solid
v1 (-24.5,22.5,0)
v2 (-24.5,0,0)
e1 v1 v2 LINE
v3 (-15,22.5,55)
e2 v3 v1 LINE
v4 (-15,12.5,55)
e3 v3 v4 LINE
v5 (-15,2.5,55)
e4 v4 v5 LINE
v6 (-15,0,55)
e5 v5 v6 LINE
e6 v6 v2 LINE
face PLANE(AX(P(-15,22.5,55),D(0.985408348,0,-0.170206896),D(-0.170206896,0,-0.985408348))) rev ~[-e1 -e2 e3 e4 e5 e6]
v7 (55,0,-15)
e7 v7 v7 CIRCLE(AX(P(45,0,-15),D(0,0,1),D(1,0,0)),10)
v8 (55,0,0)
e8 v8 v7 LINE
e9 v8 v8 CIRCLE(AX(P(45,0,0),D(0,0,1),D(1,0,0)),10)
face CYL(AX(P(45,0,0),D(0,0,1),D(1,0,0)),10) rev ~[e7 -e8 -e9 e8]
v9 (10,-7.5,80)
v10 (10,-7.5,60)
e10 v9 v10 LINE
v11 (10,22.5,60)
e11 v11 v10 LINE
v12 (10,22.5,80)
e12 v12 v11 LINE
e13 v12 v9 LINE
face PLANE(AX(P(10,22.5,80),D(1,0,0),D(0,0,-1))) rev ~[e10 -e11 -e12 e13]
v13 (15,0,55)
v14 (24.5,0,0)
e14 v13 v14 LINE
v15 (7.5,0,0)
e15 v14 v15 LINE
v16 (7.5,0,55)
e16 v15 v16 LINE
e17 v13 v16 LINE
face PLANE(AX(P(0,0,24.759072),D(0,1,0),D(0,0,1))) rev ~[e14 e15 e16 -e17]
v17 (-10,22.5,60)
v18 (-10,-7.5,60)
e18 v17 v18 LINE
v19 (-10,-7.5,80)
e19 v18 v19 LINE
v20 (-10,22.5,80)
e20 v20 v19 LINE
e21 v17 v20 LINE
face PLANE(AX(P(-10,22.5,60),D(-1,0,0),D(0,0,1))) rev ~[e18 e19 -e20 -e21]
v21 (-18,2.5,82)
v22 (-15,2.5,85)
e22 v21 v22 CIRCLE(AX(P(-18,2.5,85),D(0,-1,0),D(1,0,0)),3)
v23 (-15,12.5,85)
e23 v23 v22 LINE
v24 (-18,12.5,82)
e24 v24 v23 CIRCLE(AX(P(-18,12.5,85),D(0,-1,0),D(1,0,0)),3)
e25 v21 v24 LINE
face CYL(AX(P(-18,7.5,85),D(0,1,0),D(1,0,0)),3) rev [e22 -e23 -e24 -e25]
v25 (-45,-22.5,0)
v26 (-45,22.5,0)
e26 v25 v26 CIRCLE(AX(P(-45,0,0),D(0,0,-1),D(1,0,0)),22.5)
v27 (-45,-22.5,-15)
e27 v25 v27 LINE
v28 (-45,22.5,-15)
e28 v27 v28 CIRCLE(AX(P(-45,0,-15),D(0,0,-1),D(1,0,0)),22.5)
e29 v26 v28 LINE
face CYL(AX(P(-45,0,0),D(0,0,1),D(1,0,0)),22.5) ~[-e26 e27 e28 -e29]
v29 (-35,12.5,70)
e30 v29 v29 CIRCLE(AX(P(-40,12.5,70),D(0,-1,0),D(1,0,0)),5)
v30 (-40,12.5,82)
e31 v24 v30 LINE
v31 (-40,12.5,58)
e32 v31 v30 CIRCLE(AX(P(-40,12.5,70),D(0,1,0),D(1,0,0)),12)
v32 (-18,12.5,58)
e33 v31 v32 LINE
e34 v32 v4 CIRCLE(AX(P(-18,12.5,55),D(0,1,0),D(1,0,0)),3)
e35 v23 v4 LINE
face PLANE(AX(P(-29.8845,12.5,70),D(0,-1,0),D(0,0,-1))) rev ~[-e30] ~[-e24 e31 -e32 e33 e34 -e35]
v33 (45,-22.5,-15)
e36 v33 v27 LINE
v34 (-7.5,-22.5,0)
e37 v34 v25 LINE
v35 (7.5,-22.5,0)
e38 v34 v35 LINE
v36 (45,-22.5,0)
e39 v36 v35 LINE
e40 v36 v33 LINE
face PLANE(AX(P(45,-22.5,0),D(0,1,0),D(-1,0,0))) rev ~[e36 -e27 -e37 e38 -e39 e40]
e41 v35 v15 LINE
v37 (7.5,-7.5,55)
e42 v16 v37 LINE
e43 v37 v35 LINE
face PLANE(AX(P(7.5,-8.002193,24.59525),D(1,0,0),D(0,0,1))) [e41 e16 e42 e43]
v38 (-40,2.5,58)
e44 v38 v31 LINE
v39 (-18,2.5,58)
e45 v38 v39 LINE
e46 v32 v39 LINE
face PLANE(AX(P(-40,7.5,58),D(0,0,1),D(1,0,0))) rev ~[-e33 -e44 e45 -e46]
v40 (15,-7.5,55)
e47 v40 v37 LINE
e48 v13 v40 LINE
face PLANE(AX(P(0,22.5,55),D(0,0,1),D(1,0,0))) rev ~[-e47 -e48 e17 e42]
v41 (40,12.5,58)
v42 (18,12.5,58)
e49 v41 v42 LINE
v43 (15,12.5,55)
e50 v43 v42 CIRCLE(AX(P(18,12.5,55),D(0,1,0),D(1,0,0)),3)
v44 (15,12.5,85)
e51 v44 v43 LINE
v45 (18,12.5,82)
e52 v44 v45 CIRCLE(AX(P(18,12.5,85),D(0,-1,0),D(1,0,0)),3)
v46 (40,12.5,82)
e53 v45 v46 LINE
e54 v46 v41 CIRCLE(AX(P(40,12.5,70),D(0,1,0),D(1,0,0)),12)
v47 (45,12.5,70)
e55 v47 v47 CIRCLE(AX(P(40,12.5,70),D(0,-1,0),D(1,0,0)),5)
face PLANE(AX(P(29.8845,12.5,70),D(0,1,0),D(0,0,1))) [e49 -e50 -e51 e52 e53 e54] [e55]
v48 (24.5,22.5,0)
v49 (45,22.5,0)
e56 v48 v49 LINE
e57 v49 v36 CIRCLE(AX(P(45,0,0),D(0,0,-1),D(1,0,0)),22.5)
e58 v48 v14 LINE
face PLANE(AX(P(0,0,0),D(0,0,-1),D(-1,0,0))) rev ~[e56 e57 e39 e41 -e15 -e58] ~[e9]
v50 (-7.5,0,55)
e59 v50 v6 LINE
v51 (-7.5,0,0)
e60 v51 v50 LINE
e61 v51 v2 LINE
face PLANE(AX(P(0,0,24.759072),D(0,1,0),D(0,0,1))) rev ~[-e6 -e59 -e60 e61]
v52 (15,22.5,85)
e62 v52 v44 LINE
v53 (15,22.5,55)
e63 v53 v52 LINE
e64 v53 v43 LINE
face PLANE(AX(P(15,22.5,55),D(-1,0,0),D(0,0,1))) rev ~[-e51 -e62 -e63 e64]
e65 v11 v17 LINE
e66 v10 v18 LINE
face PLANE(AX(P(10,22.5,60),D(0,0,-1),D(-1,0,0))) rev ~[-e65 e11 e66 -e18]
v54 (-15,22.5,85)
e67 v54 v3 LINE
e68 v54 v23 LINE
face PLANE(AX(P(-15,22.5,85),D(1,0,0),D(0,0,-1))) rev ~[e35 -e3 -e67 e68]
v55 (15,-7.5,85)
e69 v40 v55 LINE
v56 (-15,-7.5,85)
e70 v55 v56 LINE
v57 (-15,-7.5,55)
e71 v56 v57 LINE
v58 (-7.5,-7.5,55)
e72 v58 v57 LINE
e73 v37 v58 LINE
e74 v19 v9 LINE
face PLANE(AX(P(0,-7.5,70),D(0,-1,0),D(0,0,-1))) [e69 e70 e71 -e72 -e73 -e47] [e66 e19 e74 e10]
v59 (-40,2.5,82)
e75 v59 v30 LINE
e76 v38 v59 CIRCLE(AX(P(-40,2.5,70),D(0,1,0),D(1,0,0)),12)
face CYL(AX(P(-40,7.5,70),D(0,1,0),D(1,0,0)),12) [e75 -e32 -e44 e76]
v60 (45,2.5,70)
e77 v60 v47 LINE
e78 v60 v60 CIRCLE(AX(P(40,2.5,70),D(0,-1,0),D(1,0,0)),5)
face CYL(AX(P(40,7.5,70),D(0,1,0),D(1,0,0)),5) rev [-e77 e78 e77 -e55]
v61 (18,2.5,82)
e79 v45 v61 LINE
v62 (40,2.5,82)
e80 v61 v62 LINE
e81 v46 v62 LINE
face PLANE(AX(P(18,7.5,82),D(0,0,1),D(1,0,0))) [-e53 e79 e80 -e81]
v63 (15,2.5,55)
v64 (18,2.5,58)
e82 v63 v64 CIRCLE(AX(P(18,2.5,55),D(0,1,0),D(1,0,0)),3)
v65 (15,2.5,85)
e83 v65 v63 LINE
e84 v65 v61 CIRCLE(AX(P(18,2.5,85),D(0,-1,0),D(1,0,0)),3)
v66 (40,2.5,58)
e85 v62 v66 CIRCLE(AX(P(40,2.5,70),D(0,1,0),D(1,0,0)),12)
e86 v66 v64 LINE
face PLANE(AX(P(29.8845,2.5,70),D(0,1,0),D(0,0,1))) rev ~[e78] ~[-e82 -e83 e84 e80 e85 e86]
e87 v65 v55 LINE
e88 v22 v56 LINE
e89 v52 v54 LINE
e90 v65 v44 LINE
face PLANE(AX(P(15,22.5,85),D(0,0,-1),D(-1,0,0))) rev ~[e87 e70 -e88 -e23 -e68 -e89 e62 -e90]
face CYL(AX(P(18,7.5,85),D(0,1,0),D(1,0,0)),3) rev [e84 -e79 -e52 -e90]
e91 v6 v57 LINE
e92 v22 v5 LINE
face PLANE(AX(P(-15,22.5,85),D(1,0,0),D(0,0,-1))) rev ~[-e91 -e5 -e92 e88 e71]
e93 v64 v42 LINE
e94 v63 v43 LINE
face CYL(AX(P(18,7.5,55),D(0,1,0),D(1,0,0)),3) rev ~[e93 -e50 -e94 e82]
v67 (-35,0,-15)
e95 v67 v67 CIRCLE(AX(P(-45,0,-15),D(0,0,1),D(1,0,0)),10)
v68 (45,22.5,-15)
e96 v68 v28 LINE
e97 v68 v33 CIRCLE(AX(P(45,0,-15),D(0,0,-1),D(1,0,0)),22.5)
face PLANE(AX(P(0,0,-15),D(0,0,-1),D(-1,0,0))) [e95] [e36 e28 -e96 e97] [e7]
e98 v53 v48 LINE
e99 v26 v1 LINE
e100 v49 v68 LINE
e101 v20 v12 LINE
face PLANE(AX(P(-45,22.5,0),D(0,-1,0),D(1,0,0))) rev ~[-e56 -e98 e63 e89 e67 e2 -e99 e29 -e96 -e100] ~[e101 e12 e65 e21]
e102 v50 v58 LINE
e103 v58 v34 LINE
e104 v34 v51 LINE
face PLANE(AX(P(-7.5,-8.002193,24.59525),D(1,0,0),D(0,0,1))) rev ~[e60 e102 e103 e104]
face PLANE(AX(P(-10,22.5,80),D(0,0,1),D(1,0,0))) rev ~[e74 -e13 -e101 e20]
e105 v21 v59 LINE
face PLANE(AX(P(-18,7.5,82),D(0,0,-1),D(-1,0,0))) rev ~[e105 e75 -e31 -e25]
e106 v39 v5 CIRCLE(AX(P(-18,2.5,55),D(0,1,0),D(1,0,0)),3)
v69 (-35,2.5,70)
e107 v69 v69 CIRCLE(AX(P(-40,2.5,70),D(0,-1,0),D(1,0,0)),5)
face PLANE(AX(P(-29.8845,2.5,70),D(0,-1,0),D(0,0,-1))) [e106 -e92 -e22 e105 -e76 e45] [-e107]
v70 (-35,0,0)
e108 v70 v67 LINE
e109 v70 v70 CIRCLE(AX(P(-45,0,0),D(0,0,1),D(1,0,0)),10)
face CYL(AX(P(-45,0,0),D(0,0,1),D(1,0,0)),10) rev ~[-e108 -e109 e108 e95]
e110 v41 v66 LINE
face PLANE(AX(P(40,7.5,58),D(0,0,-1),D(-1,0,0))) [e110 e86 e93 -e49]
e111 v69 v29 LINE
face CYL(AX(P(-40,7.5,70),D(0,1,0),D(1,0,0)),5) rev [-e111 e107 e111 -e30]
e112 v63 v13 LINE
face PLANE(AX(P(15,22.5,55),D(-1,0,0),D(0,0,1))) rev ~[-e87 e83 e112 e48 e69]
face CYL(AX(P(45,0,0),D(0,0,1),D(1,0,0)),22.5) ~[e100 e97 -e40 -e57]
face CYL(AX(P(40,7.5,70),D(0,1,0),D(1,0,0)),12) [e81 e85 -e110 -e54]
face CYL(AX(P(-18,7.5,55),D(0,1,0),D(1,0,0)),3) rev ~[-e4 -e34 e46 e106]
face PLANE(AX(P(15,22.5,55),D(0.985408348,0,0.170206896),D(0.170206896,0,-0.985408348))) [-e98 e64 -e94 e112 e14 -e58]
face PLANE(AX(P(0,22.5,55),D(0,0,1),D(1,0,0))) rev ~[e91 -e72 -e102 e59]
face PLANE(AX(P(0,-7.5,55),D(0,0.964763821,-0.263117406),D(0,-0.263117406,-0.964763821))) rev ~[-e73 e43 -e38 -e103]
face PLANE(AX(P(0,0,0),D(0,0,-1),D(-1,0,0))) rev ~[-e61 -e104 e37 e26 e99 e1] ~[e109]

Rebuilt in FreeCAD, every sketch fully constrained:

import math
import FreeCAD as App
import Part
import Sketcher
Q = App.Units.Quantity


def add_polygon(sketch, points):
    """Adds a closed chain of lines whose ends are joined by coincident constraints."""
    first, n = sketch.GeometryCount, len(points)
    for a, b in zip(points, points[1:] + points[:1]):
        sketch.addGeometry(Part.LineSegment(App.Vector(*a, 0), App.Vector(*b, 0)), False)
    for i in range(n):
        sketch.addConstraint(Sketcher.Constraint("Coincident", first + i, 2, first + (i + 1) % n, 1))

doc = App.newDocument("Part")
body = doc.addObject("PartDesign::Body", "Body")

# Sketch on XY plane
sketch1 = body.newObject("Sketcher::SketchObject", "Sketch")
sketch1.AttachmentSupport = (doc.getObject("XY_Plane"), [""])
sketch1.MapMode = "FlatFace"
sketch1.addGeometry(Part.LineSegment(App.Vector(45, 22, 0), App.Vector(-45, 22, 0)), False)
sketch1.addGeometry(Part.ArcOfCircle(Part.Circle(App.Vector(-45, 0, 0), App.Vector(0, 0, 1), 22), math.radians(90), math.radians(270)), False)
sketch1.addGeometry(Part.LineSegment(App.Vector(-45, -22, 0), App.Vector(45, -22, 0)), False)
sketch1.addGeometry(Part.ArcOfCircle(Part.Circle(App.Vector(45, 0, 0), App.Vector(0, 0, 1), 22), math.radians(-90), math.radians(90)), False)
sketch1.addGeometry(Part.Circle(App.Vector(-45, 0, 0), App.Vector(0, 0, 1), 10), False)
sketch1.addGeometry(Part.Circle(App.Vector(45, 0, 0), App.Vector(0, 0, 1), 10), False)
sketch1.addConstraint(Sketcher.Constraint("Tangent", 0, 2, 1, 1))
sketch1.addConstraint(Sketcher.Constraint("Tangent", 1, 2, 2, 1))
sketch1.addConstraint(Sketcher.Constraint("Tangent", 2, 2, 3, 1))
sketch1.addConstraint(Sketcher.Constraint("Tangent", 3, 2, 0, 1))
sketch1.addConstraint(Sketcher.Constraint("Horizontal", 0))
sketch1.addConstraint(Sketcher.Constraint("Horizontal", 2))
sketch1.addConstraint(Sketcher.Constraint("Coincident", 4, 3, 1, 3))
sketch1.addConstraint(Sketcher.Constraint("Coincident", 5, 3, 3, 3))
sketch1.addConstraint(Sketcher.Constraint("Equal", 4, 5))
sketch1.addConstraint(Sketcher.Constraint("Symmetric", 1, 3, 3, 3, -1, 1))
sketch1.addConstraint(Sketcher.Constraint("Diameter", 4, Q("20 mm")))
sketch1.addConstraint(Sketcher.Constraint("Radius", 1, Q("22.5 mm")))
sketch1.addConstraint(Sketcher.Constraint("DistanceX", 0, 2, 0, 1, Q("90 mm")))
pad1 = body.newObject("PartDesign::Pad", "Pad")
pad1.Profile = sketch1
pad1.Length = 15
pad1.Reversed = True

# Sketch on XY plane
sketch2 = body.newObject("Sketcher::SketchObject", "Sketch001")
sketch2.AttachmentSupport = (doc.getObject("XY_Plane"), [""])
sketch2.MapMode = "FlatFace"
add_polygon(sketch2, [(-8, 22), (-8, 0), (8, 0), (8, 22)])  # lines 0-3
sketch2.addConstraint(Sketcher.Constraint("Vertical", 0))
sketch2.addConstraint(Sketcher.Constraint("Horizontal", 1))
sketch2.addConstraint(Sketcher.Constraint("Vertical", 2))
sketch2.addConstraint(Sketcher.Constraint("Horizontal", 3))
sketch2.addConstraint(Sketcher.Constraint("Symmetric", 0, 2, 1, 2, -1, 1))
sketch2.addConstraint(Sketcher.Constraint("DistanceX", 1, 1, 1, 2, Q("15 mm")))
sketch2.addConstraint(Sketcher.Constraint("DistanceY", 0, 2, 0, 1, Q("22.5 mm")))
pad2 = body.newObject("PartDesign::Pad", "Pad001")
pad2.Profile = sketch2
pad2.Length = 55

# Sketch on XZ plane
sketch3 = body.newObject("Sketcher::SketchObject", "Sketch002")
sketch3.AttachmentSupport = (doc.getObject("XZ_Plane"), [""])
sketch3.MapMode = "FlatFace"
sketch3.AttachmentOffset = App.Placement(App.Vector(0, 0, -22.5), App.Rotation())
add_polygon(sketch3, [(15, 85), (15, 55), (-15, 55), (-15, 85)])  # lines 0-3
add_polygon(sketch3, [(-10, 60), (10, 60), (10, 80), (-10, 80)])  # lines 4-7
sketch3.addConstraint(Sketcher.Constraint("Vertical", 0))
sketch3.addConstraint(Sketcher.Constraint("Horizontal", 1))
sketch3.addConstraint(Sketcher.Constraint("Vertical", 2))
sketch3.addConstraint(Sketcher.Constraint("Horizontal", 3))
sketch3.addConstraint(Sketcher.Constraint("Horizontal", 4))
sketch3.addConstraint(Sketcher.Constraint("Vertical", 5))
sketch3.addConstraint(Sketcher.Constraint("Horizontal", 6))
sketch3.addConstraint(Sketcher.Constraint("Vertical", 7))
sketch3.addConstraint(Sketcher.Constraint("Equal", 3, 0))
sketch3.addConstraint(Sketcher.Constraint("Equal", 6, 5))
sketch3.addConstraint(Sketcher.Constraint("DistanceX", 1, 2, 1, 1, Q("30 mm")))
sketch3.addConstraint(Sketcher.Constraint("DistanceX", 4, 1, 4, 2, Q("20 mm")))
sketch3.addConstraint(Sketcher.Constraint("DistanceX", -1, 1, 0, 2, Q("15 mm")))
sketch3.addConstraint(Sketcher.Constraint("DistanceY", -1, 1, 0, 2, Q("55 mm")))
sketch3.addConstraint(Sketcher.Constraint("DistanceX", -1, 1, 4, 2, Q("10 mm")))
sketch3.addConstraint(Sketcher.Constraint("DistanceY", -1, 1, 4, 2, Q("60 mm")))
pad3 = body.newObject("PartDesign::Pad", "Pad002")
pad3.Profile = sketch3
pad3.Length = 30

# Sketch on XZ plane
sketch4 = body.newObject("Sketcher::SketchObject", "Sketch003")
sketch4.AttachmentSupport = (doc.getObject("XZ_Plane"), [""])
sketch4.MapMode = "FlatFace"
sketch4.AttachmentOffset = App.Placement(App.Vector(0, 0, -22.5), App.Rotation())
add_polygon(sketch4, [(-15, 55), (15, 55), (24, 0), (-24, 0)])  # lines 0-3
sketch4.addConstraint(Sketcher.Constraint("Horizontal", 0))
sketch4.addConstraint(Sketcher.Constraint("Horizontal", 2))
sketch4.addConstraint(Sketcher.Constraint("Symmetric", 1, 2, 2, 2, -1, 1))
sketch4.addConstraint(Sketcher.Constraint("Equal", 1, 3))
sketch4.addConstraint(Sketcher.Constraint("DistanceX", 0, 1, 0, 2, Q("30 mm")))
sketch4.addConstraint(Sketcher.Constraint("DistanceX", 2, 2, 2, 1, Q("49 mm")))
sketch4.addConstraint(Sketcher.Constraint("DistanceY", -1, 1, 0, 2, Q("55 mm")))
pad4 = body.newObject("PartDesign::Pad", "Pad003")
pad4.Profile = sketch4
pad4.Length = 22.5

# Sketch on YZ plane
sketch5 = body.newObject("Sketcher::SketchObject", "Sketch004")
sketch5.AttachmentSupport = (doc.getObject("YZ_Plane"), [""])
sketch5.MapMode = "FlatFace"
add_polygon(sketch5, [(0, 55), (-8, 55), (-22, 0), (0, 0)])  # lines 0-3
sketch5.addConstraint(Sketcher.Constraint("Horizontal", 0))
sketch5.addConstraint(Sketcher.Constraint("Horizontal", 2))
sketch5.addConstraint(Sketcher.Constraint("Vertical", 3))
sketch5.addConstraint(Sketcher.Constraint("Coincident", 2, 2, -1, 1))
sketch5.addConstraint(Sketcher.Constraint("DistanceY", 3, 1, 3, 2, Q("55 mm")))
sketch5.addConstraint(Sketcher.Constraint("DistanceX", 0, 2, 0, 1, Q("7.5 mm")))
sketch5.addConstraint(Sketcher.Constraint("DistanceX", 2, 1, 2, 2, Q("22.5 mm")))
pad5 = body.newObject("PartDesign::Pad", "Pad004")
pad5.Profile = sketch5
pad5.Length = 15
pad5.Midplane = True

# Sketch on XZ plane
sketch6 = body.newObject("Sketcher::SketchObject", "Sketch005")
sketch6.AttachmentSupport = (doc.getObject("XZ_Plane"), [""])
sketch6.MapMode = "FlatFace"
sketch6.AttachmentOffset = App.Placement(App.Vector(0, 0, -7.5), App.Rotation())
sketch6.addGeometry(Part.ArcOfCircle(Part.Circle(App.Vector(-40, 70, 0), App.Vector(0, 0, 1), 12), math.radians(90), math.radians(270)), False)
sketch6.addGeometry(Part.LineSegment(App.Vector(-40, 58, 0), App.Vector(-18, 58, 0)), False)
sketch6.addGeometry(Part.ArcOfCircle(Part.Circle(App.Vector(-18, 55, 0), App.Vector(0, 0, 1), 3), math.radians(0), math.radians(90)), False)
sketch6.addGeometry(Part.LineSegment(App.Vector(-15, 55, 0), App.Vector(-15, 85, 0)), False)
sketch6.addGeometry(Part.ArcOfCircle(Part.Circle(App.Vector(-18, 85, 0), App.Vector(0, 0, 1), 3), math.radians(-90), math.radians(0)), False)
sketch6.addGeometry(Part.LineSegment(App.Vector(-18, 82, 0), App.Vector(-40, 82, 0)), False)
sketch6.addGeometry(Part.Circle(App.Vector(-40, 70, 0), App.Vector(0, 0, 1), 5), False)
sketch6.addGeometry(Part.LineSegment(App.Vector(18, 58, 0), App.Vector(40, 58, 0)), False)
sketch6.addGeometry(Part.ArcOfCircle(Part.Circle(App.Vector(40, 70, 0), App.Vector(0, 0, 1), 12), math.radians(-90), math.radians(90)), False)
sketch6.addGeometry(Part.LineSegment(App.Vector(40, 82, 0), App.Vector(18, 82, 0)), False)
sketch6.addGeometry(Part.ArcOfCircle(Part.Circle(App.Vector(18, 85, 0), App.Vector(0, 0, 1), 3), math.radians(180), math.radians(270)), False)
sketch6.addGeometry(Part.LineSegment(App.Vector(15, 85, 0), App.Vector(15, 55, 0)), False)
sketch6.addGeometry(Part.ArcOfCircle(Part.Circle(App.Vector(18, 55, 0), App.Vector(0, 0, 1), 3), math.radians(90), math.radians(180)), False)
sketch6.addGeometry(Part.Circle(App.Vector(40, 70, 0), App.Vector(0, 0, 1), 5), False)
sketch6.addConstraint(Sketcher.Constraint("Tangent", 0, 2, 1, 1))
sketch6.addConstraint(Sketcher.Constraint("Tangent", 1, 2, 2, 2))
sketch6.addConstraint(Sketcher.Constraint("Tangent", 2, 1, 3, 1))
sketch6.addConstraint(Sketcher.Constraint("Tangent", 3, 2, 4, 2))
sketch6.addConstraint(Sketcher.Constraint("Tangent", 4, 1, 5, 1))
sketch6.addConstraint(Sketcher.Constraint("Tangent", 5, 2, 0, 1))
sketch6.addConstraint(Sketcher.Constraint("Tangent", 7, 2, 8, 1))
sketch6.addConstraint(Sketcher.Constraint("Tangent", 8, 2, 9, 1))
sketch6.addConstraint(Sketcher.Constraint("Tangent", 9, 2, 10, 2))
sketch6.addConstraint(Sketcher.Constraint("Tangent", 10, 1, 11, 1))
sketch6.addConstraint(Sketcher.Constraint("Tangent", 11, 2, 12, 2))
sketch6.addConstraint(Sketcher.Constraint("Tangent", 12, 1, 7, 1))
sketch6.addConstraint(Sketcher.Constraint("Horizontal", 1))
sketch6.addConstraint(Sketcher.Constraint("Vertical", 3))
sketch6.addConstraint(Sketcher.Constraint("Horizontal", 5))
sketch6.addConstraint(Sketcher.Constraint("Horizontal", 7))
sketch6.addConstraint(Sketcher.Constraint("Horizontal", 9))
sketch6.addConstraint(Sketcher.Constraint("Vertical", 11))
sketch6.addConstraint(Sketcher.Constraint("Coincident", 6, 3, 0, 3))
sketch6.addConstraint(Sketcher.Constraint("Coincident", 13, 3, 8, 3))
sketch6.addConstraint(Sketcher.Constraint("Equal", 2, 4))
sketch6.addConstraint(Sketcher.Constraint("Equal", 0, 8))
sketch6.addConstraint(Sketcher.Constraint("Equal", 4, 10))
sketch6.addConstraint(Sketcher.Constraint("Equal", 10, 12))
sketch6.addConstraint(Sketcher.Constraint("Equal", 6, 13))
sketch6.addConstraint(Sketcher.Constraint("Symmetric", 0, 3, 8, 3, -2))
sketch6.addConstraint(Sketcher.Constraint("Equal", 5, 7))
sketch6.addConstraint(Sketcher.Constraint("Diameter", 6, Q("10 mm")))
sketch6.addConstraint(Sketcher.Constraint("Radius", 0, Q("12 mm")))
sketch6.addConstraint(Sketcher.Constraint("Radius", 2, Q("3 mm")))
sketch6.addConstraint(Sketcher.Constraint("DistanceX", 1, 1, 1, 2, Q("22 mm")))
sketch6.addConstraint(Sketcher.Constraint("DistanceX", 0, 3, -1, 1, Q("40 mm")))
sketch6.addConstraint(Sketcher.Constraint("DistanceY", -1, 1, 0, 3, Q("70 mm")))
pad6 = body.newObject("PartDesign::Pad", "Pad005")
pad6.Profile = sketch6
pad6.Length = 10
pad6.Midplane = True

doc.recompute()
